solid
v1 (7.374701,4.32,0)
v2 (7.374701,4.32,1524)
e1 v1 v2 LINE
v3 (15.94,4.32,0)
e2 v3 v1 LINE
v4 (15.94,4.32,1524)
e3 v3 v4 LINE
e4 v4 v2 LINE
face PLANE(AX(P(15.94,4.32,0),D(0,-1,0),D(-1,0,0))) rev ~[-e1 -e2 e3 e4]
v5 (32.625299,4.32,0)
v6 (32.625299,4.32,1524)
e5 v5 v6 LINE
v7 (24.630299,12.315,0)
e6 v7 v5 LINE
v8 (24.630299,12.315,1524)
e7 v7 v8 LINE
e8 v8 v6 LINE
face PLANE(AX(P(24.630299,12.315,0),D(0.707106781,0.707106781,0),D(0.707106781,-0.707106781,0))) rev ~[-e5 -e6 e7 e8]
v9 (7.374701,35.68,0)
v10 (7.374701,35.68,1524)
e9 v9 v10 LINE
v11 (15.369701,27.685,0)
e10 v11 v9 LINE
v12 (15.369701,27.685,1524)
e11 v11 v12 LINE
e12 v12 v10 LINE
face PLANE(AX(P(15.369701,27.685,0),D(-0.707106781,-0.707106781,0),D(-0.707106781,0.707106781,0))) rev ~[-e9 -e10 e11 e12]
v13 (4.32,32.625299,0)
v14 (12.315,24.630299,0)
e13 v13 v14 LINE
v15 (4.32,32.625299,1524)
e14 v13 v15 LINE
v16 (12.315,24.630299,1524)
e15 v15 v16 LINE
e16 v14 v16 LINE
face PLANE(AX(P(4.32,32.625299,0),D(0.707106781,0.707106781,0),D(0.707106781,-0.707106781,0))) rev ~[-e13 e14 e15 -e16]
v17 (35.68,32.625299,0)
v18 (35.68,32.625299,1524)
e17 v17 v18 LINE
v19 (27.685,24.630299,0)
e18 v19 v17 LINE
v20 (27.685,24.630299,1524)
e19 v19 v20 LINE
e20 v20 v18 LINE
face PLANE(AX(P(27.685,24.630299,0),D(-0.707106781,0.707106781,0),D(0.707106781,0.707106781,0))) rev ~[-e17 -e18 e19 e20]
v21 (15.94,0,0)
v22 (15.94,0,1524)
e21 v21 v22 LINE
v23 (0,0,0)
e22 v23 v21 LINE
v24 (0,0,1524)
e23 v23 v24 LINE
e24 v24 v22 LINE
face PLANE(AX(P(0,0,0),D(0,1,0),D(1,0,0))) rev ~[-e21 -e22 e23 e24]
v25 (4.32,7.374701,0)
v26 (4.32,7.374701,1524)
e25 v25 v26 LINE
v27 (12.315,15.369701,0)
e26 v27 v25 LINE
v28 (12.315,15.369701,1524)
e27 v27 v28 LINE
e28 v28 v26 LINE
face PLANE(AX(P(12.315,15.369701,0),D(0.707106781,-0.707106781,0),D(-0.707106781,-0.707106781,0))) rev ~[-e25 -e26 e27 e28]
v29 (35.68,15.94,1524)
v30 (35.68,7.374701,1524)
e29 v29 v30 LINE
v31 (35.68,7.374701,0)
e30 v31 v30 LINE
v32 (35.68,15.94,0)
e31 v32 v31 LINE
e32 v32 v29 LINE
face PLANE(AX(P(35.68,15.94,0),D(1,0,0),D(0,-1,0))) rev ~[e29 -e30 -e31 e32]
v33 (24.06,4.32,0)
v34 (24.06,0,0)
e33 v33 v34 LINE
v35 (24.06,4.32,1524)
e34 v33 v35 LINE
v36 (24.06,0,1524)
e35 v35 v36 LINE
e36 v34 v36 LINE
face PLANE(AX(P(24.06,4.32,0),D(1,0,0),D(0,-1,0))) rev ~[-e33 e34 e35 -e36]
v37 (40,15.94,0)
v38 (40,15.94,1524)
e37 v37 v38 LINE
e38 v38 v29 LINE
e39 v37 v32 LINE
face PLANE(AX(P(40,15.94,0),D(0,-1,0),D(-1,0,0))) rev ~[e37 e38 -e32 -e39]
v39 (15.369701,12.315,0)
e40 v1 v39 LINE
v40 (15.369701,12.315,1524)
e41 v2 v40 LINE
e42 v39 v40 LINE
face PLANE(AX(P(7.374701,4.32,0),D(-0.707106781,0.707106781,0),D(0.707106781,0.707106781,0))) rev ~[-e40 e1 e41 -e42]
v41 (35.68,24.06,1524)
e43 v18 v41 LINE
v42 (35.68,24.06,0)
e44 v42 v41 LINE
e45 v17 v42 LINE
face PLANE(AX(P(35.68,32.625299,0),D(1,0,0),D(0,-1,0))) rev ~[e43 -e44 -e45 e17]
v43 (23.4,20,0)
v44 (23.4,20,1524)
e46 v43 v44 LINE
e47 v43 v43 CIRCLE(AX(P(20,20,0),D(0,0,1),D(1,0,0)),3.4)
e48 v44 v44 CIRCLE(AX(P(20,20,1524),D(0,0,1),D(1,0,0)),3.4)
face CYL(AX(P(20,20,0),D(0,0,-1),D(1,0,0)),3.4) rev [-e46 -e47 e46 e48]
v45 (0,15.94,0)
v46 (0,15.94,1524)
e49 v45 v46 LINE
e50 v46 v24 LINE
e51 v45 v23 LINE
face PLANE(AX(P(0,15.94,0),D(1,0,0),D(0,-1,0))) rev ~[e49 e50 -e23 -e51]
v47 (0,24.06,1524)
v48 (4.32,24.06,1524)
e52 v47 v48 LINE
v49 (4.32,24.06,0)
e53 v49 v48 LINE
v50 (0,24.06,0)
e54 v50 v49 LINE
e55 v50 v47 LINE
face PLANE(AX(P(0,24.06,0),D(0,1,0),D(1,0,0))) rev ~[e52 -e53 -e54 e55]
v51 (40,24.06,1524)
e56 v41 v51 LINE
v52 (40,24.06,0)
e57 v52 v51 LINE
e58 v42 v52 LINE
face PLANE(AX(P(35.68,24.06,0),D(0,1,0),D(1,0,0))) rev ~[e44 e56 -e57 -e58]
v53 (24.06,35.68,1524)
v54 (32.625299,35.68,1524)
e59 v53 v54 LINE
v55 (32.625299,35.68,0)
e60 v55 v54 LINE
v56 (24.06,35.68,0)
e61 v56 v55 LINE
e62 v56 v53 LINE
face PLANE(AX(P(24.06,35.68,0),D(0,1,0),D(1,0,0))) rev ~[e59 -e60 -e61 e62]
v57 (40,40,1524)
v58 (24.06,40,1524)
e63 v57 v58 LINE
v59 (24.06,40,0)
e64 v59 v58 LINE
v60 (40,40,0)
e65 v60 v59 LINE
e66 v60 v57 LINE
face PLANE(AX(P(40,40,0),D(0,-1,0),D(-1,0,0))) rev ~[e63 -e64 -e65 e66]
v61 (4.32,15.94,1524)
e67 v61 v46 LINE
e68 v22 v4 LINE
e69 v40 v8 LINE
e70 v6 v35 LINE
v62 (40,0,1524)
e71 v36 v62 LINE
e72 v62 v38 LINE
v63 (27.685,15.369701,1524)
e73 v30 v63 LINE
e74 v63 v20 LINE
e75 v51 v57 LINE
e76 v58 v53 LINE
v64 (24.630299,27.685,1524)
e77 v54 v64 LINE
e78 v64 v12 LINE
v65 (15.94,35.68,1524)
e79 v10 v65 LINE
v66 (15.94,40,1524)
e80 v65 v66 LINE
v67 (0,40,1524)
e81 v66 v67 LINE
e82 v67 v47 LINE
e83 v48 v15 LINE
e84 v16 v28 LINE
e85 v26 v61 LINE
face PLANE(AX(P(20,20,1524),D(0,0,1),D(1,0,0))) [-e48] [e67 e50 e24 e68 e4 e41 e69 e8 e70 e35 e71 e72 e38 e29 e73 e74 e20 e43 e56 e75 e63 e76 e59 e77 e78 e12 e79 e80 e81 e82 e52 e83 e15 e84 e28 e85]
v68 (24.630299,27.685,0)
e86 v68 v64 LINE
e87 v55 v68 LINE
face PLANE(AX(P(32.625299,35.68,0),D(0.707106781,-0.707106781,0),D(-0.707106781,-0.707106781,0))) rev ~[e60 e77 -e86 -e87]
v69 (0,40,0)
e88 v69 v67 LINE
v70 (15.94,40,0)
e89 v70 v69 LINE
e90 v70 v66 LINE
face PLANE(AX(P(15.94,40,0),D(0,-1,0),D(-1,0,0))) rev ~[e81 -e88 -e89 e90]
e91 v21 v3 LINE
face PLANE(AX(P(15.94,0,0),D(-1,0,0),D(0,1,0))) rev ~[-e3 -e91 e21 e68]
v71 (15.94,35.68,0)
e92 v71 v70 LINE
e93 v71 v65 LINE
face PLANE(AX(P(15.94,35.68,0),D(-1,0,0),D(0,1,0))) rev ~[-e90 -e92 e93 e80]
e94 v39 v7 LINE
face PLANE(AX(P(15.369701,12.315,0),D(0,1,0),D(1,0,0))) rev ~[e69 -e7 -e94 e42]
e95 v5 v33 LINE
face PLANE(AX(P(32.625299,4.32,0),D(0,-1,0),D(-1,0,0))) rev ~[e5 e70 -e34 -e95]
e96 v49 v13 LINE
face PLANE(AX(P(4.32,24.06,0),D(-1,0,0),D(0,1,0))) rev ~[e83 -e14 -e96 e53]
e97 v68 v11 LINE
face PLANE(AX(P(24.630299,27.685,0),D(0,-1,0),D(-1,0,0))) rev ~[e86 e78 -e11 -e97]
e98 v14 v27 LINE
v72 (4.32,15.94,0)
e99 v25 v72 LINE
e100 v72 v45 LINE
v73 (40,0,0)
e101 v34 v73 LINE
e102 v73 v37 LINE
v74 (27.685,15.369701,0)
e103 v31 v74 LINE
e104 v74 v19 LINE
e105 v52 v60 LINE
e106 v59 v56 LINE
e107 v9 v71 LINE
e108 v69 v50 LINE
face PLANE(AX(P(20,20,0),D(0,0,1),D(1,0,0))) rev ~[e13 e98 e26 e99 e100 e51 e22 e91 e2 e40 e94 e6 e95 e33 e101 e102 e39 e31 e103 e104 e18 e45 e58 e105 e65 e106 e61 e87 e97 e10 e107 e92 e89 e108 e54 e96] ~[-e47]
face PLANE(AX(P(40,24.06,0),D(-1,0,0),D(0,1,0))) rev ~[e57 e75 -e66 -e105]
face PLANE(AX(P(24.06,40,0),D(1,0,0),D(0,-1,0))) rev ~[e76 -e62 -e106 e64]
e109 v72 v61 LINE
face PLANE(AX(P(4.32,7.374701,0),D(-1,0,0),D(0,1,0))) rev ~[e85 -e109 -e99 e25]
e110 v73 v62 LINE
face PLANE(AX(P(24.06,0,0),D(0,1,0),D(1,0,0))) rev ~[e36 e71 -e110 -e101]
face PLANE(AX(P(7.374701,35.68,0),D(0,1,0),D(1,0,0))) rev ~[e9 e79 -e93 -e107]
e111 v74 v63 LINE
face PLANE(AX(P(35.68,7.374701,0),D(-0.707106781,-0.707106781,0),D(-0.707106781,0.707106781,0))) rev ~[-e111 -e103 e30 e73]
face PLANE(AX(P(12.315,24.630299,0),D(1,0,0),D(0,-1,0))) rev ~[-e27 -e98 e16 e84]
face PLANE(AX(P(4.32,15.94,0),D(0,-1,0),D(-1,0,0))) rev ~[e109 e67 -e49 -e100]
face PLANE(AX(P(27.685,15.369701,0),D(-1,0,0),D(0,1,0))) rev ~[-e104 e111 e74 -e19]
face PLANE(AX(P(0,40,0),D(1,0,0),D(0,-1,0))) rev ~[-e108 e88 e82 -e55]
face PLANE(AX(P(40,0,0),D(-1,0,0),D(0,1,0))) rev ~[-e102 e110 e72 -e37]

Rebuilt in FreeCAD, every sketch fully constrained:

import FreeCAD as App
import Part
import Sketcher

doc = App.newDocument("Part")
params = doc.addObject("Spreadsheet::Sheet", "Params")
for row, (alias, value) in enumerate([
    ("sketch1_diameter", "6.8 mm"),
    ("sketch1_width", "15.94 mm"),
    ("sketch1_width2", "4.32 mm"),
    ("pad1_length", "1524 mm"),
], start=1):
    params.set(f"A{row}", alias)
    params.set(f"B{row}", "=" + value)
    params.setAlias(f"B{row}", alias)

body = doc.addObject("PartDesign::Body", "Body")

# Sketch on XY plane
sketch1 = body.newObject("Sketcher::SketchObject", "Sketch")
sketch1.AttachmentSupport = (doc.getObject("XY_Plane"), [""])
sketch1.MapMode = "FlatFace"
sketch1.addGeometry([
    Part.LineSegment(App.Vector(0, 0, 0), App.Vector(15.9, 0, 0)),  # 0
    Part.LineSegment(App.Vector(15.9, 0, 0), App.Vector(15.9, 4.3, 0)),  # 1
    Part.LineSegment(App.Vector(15.9, 4.3, 0), App.Vector(7.4, 4.3, 0)),  # 2
    Part.LineSegment(App.Vector(7.4, 4.3, 0), App.Vector(15.4, 12.3, 0)),  # 3
    Part.LineSegment(App.Vector(15.4, 12.3, 0), App.Vector(24.6, 12.3, 0)),  # 4
    Part.LineSegment(App.Vector(24.6, 12.3, 0), App.Vector(32.6, 4.3, 0)),  # 5
    Part.LineSegment(App.Vector(32.6, 4.3, 0), App.Vector(24.1, 4.3, 0)),  # 6
    Part.LineSegment(App.Vector(24.1, 4.3, 0), App.Vector(24.1, 0, 0)),  # 7
    Part.LineSegment(App.Vector(24.1, 0, 0), App.Vector(40, 0, 0)),  # 8
    Part.LineSegment(App.Vector(40, 0, 0), App.Vector(40, 15.9, 0)),  # 9
    Part.LineSegment(App.Vector(40, 15.9, 0), App.Vector(35.7, 15.9, 0)),  # 10
    Part.LineSegment(App.Vector(35.7, 15.9, 0), App.Vector(35.7, 7.4, 0)),  # 11
    Part.LineSegment(App.Vector(35.7, 7.4, 0), App.Vector(27.7, 15.4, 0)),  # 12
    Part.LineSegment(App.Vector(27.7, 15.4, 0), App.Vector(27.7, 24.6, 0)),  # 13
    Part.LineSegment(App.Vector(27.7, 24.6, 0), App.Vector(35.7, 32.6, 0)),  # 14
    Part.LineSegment(App.Vector(35.7, 32.6, 0), App.Vector(35.7, 24.1, 0)),  # 15
    Part.LineSegment(App.Vector(35.7, 24.1, 0), App.Vector(40, 24.1, 0)),  # 16
    Part.LineSegment(App.Vector(40, 24.1, 0), App.Vector(40, 40, 0)),  # 17
    Part.LineSegment(App.Vector(40, 40, 0), App.Vector(24.1, 40, 0)),  # 18
    Part.LineSegment(App.Vector(24.1, 40, 0), App.Vector(24.1, 35.7, 0)),  # 19
    Part.LineSegment(App.Vector(24.1, 35.7, 0), App.Vector(32.6, 35.7, 0)),  # 20
    Part.LineSegment(App.Vector(32.6, 35.7, 0), App.Vector(24.6, 27.7, 0)),  # 21
    Part.LineSegment(App.Vector(24.6, 27.7, 0), App.Vector(15.4, 27.7, 0)),  # 22
    Part.LineSegment(App.Vector(15.4, 27.7, 0), App.Vector(7.4, 35.7, 0)),  # 23
    Part.LineSegment(App.Vector(7.4, 35.7, 0), App.Vector(15.9, 35.7, 0)),  # 24
    Part.LineSegment(App.Vector(15.9, 35.7, 0), App.Vector(15.9, 40, 0)),  # 25
    Part.LineSegment(App.Vector(15.9, 40, 0), App.Vector(0, 40, 0)),  # 26
    Part.LineSegment(App.Vector(0, 40, 0), App.Vector(0, 24.1, 0)),  # 27
    Part.LineSegment(App.Vector(0, 24.1, 0), App.Vector(4.3, 24.1, 0)),  # 28
    Part.LineSegment(App.Vector(4.3, 24.1, 0), App.Vector(4.3, 32.6, 0)),  # 29
    Part.LineSegment(App.Vector(4.3, 32.6, 0), App.Vector(12.3, 24.6, 0)),  # 30
    Part.LineSegment(App.Vector(12.3, 24.6, 0), App.Vector(12.3, 15.4, 0)),  # 31
    Part.LineSegment(App.Vector(12.3, 15.4, 0), App.Vector(4.3, 7.4, 0)),  # 32
    Part.LineSegment(App.Vector(4.3, 7.4, 0), App.Vector(4.3, 15.9, 0)),  # 33
    Part.LineSegment(App.Vector(4.3, 15.9, 0), App.Vector(0, 15.9, 0)),  # 34
    Part.LineSegment(App.Vector(0, 15.9, 0), App.Vector(0, 0, 0)),  # 35
    Part.Circle(App.Vector(20, 20, 0), App.Vector(0, 0, 1), 3.4),  # 36
], False)
sketch1.addConstraint([
    Sketcher.Constraint("Coincident", 0, 2, 1, 1),
    Sketcher.Constraint("Coincident", 1, 2, 2, 1),
    Sketcher.Constraint("Coincident", 2, 2, 3, 1),
    Sketcher.Constraint("Coincident", 3, 2, 4, 1),
    Sketcher.Constraint("Coincident", 4, 2, 5, 1),
    Sketcher.Constraint("Coincident", 5, 2, 6, 1),
    Sketcher.Constraint("Coincident", 6, 2, 7, 1),
    Sketcher.Constraint("Coincident", 7, 2, 8, 1),
    Sketcher.Constraint("Coincident", 8, 2, 9, 1),
    Sketcher.Constraint("Coincident", 9, 2, 10, 1),
    Sketcher.Constraint("Coincident", 10, 2, 11, 1),
    Sketcher.Constraint("Coincident", 11, 2, 12, 1),
    Sketcher.Constraint("Coincident", 12, 2, 13, 1),
    Sketcher.Constraint("Coincident", 13, 2, 14, 1),
    Sketcher.Constraint("Coincident", 14, 2, 15, 1),
    Sketcher.Constraint("Coincident", 15, 2, 16, 1),
    Sketcher.Constraint("Coincident", 16, 2, 17, 1),
    Sketcher.Constraint("Coincident", 17, 2, 18, 1),
    Sketcher.Constraint("Coincident", 18, 2, 19, 1),
    Sketcher.Constraint("Coincident", 19, 2, 20, 1),
    Sketcher.Constraint("Coincident", 20, 2, 21, 1),
    Sketcher.Constraint("Coincident", 21, 2, 22, 1),
    Sketcher.Constraint("Coincident", 22, 2, 23, 1),
    Sketcher.Constraint("Coincident", 23, 2, 24, 1),
    Sketcher.Constraint("Coincident", 24, 2, 25, 1),
    Sketcher.Constraint("Coincident", 25, 2, 26, 1),
    Sketcher.Constraint("Coincident", 26, 2, 27, 1),
    Sketcher.Constraint("Coincident", 27, 2, 28, 1),
    Sketcher.Constraint("Coincident", 28, 2, 29, 1),
    Sketcher.Constraint("Coincident", 29, 2, 30, 1),
    Sketcher.Constraint("Coincident", 30, 2, 31, 1),
    Sketcher.Constraint("Coincident", 31, 2, 32, 1),
    Sketcher.Constraint("Coincident", 32, 2, 33, 1),
    Sketcher.Constraint("Coincident", 33, 2, 34, 1),
    Sketcher.Constraint("Coincident", 34, 2, 35, 1),
    Sketcher.Constraint("Coincident", 35, 2, 0, 1),
    Sketcher.Constraint("Horizontal", 0),
    Sketcher.Constraint("Vertical", 1),
    Sketcher.Constraint("Horizontal", 2),
    Sketcher.Constraint("Horizontal", 4),
    Sketcher.Constraint("Horizontal", 6),
    Sketcher.Constraint("Vertical", 7),
    Sketcher.Constraint("Horizontal", 8),
    Sketcher.Constraint("Vertical", 9),
    Sketcher.Constraint("Horizontal", 10),
    Sketcher.Constraint("Vertical", 11),
    Sketcher.Constraint("Vertical", 13),
    Sketcher.Constraint("Vertical", 15),
    Sketcher.Constraint("Horizontal", 16),
    Sketcher.Constraint("Vertical", 17),
    Sketcher.Constraint("Horizontal", 18),
    Sketcher.Constraint("Vertical", 19),
    Sketcher.Constraint("Horizontal", 20),
    Sketcher.Constraint("Horizontal", 22),
    Sketcher.Constraint("Horizontal", 24),
    Sketcher.Constraint("Vertical", 25),
    Sketcher.Constraint("Horizontal", 26),
    Sketcher.Constraint("Vertical", 27),
    Sketcher.Constraint("Horizontal", 28),
    Sketcher.Constraint("Vertical", 29),
    Sketcher.Constraint("Vertical", 31),
    Sketcher.Constraint("Vertical", 33),
    Sketcher.Constraint("Horizontal", 34),
    Sketcher.Constraint("Vertical", 35),
    Sketcher.Constraint("Coincident", 35, 2, -1, 1),
    Sketcher.Constraint("PointOnObject", 7, 2, -1),
    Sketcher.Constraint("PointOnObject", 26, 2, -2),
    Sketcher.Constraint("Perpendicular", 3, 5),
    Sketcher.Constraint("Parallel", 5, 12),
    Sketcher.Constraint("Perpendicular", 12, 14),
    Sketcher.Constraint("Parallel", 14, 21),
    Sketcher.Constraint("Perpendicular", 21, 23),
    Sketcher.Constraint("Parallel", 23, 30),
    Sketcher.Constraint("Perpendicular", 30, 32),
    Sketcher.Constraint("Horizontal", 2, 2, 5, 2),
    Sketcher.Constraint("Horizontal", 20, 2, 23, 2),
    Sketcher.Constraint("Horizontal", 18, 2, 25, 2),
    Sketcher.Constraint("Horizontal", 16, 2, 27, 2),
    Sketcher.Constraint("Horizontal", 14, 2, 29, 2),
    Sketcher.Constraint("Horizontal", 13, 2, 30, 2),
    Sketcher.Constraint("Horizontal", 12, 2, 31, 2),
    Sketcher.Constraint("Horizontal", 11, 2, 32, 2),
    Sketcher.Constraint("Horizontal", 10, 2, 33, 2),
    Sketcher.Constraint("Vertical", 11, 2, 14, 2),
    Sketcher.Constraint("Vertical", 9, 2, 16, 2),
    Sketcher.Constraint("Vertical", 7, 2, 18, 2),
    Sketcher.Constraint("Vertical", 5, 2, 20, 2),
    Sketcher.Constraint("Vertical", 4, 2, 21, 2),
    Sketcher.Constraint("Vertical", 3, 2, 22, 2),
    Sketcher.Constraint("Vertical", 2, 2, 23, 2),
    Sketcher.Constraint("Vertical", 1, 2, 24, 2),
    Sketcher.Constraint("Equal", 2, 6),
    Sketcher.Constraint("Equal", 0, 8),
    Sketcher.Constraint("Equal", 16, 28),
    Sketcher.Constraint("Equal", 34, 1),
    Sketcher.Constraint("Equal", 26, 9),
    Sketcher.Constraint("Equal", 24, 11),
    Sketcher.Constraint("Equal", 22, 13),
    Sketcher.Constraint("Equal", 11, 15),
    Sketcher.Constraint("Equal", 9, 17),
    Sketcher.Constraint("Equal", 7, 19),
    Sketcher.Constraint("Equal", 5, 12),
    Sketcher.Constraint("Diameter", 36, 6.8),
    Sketcher.Constraint("DistanceX", -1, 1, 36, 3, 20.0),
    Sketcher.Constraint("DistanceY", -1, 1, 36, 3, 20.0),
    Sketcher.Constraint("DistanceX", -1, 1, 8, 2, 40.0),
    Sketcher.Constraint("DistanceX", 0, 1, 0, 2, 15.94),
    Sketcher.Constraint("DistanceX", 10, 2, 10, 1, 4.32),
    Sketcher.Constraint("DistanceX", 2, 2, 2, 1, 8.565299),
    Sketcher.Constraint("DistanceY", -1, 1, 3, 2, 12.315),
])
sketch1.setExpression("Constraints[102]", "Params.sketch1_diameter")
sketch1.setExpression("Constraints[106]", "Params.sketch1_width")
sketch1.setExpression("Constraints[107]", "Params.sketch1_width2")
pad1 = body.newObject("PartDesign::Pad", "Pad")
pad1.Profile = sketch1
pad1.setExpression("Length", "Params.pad1_length")

doc.recompute()
